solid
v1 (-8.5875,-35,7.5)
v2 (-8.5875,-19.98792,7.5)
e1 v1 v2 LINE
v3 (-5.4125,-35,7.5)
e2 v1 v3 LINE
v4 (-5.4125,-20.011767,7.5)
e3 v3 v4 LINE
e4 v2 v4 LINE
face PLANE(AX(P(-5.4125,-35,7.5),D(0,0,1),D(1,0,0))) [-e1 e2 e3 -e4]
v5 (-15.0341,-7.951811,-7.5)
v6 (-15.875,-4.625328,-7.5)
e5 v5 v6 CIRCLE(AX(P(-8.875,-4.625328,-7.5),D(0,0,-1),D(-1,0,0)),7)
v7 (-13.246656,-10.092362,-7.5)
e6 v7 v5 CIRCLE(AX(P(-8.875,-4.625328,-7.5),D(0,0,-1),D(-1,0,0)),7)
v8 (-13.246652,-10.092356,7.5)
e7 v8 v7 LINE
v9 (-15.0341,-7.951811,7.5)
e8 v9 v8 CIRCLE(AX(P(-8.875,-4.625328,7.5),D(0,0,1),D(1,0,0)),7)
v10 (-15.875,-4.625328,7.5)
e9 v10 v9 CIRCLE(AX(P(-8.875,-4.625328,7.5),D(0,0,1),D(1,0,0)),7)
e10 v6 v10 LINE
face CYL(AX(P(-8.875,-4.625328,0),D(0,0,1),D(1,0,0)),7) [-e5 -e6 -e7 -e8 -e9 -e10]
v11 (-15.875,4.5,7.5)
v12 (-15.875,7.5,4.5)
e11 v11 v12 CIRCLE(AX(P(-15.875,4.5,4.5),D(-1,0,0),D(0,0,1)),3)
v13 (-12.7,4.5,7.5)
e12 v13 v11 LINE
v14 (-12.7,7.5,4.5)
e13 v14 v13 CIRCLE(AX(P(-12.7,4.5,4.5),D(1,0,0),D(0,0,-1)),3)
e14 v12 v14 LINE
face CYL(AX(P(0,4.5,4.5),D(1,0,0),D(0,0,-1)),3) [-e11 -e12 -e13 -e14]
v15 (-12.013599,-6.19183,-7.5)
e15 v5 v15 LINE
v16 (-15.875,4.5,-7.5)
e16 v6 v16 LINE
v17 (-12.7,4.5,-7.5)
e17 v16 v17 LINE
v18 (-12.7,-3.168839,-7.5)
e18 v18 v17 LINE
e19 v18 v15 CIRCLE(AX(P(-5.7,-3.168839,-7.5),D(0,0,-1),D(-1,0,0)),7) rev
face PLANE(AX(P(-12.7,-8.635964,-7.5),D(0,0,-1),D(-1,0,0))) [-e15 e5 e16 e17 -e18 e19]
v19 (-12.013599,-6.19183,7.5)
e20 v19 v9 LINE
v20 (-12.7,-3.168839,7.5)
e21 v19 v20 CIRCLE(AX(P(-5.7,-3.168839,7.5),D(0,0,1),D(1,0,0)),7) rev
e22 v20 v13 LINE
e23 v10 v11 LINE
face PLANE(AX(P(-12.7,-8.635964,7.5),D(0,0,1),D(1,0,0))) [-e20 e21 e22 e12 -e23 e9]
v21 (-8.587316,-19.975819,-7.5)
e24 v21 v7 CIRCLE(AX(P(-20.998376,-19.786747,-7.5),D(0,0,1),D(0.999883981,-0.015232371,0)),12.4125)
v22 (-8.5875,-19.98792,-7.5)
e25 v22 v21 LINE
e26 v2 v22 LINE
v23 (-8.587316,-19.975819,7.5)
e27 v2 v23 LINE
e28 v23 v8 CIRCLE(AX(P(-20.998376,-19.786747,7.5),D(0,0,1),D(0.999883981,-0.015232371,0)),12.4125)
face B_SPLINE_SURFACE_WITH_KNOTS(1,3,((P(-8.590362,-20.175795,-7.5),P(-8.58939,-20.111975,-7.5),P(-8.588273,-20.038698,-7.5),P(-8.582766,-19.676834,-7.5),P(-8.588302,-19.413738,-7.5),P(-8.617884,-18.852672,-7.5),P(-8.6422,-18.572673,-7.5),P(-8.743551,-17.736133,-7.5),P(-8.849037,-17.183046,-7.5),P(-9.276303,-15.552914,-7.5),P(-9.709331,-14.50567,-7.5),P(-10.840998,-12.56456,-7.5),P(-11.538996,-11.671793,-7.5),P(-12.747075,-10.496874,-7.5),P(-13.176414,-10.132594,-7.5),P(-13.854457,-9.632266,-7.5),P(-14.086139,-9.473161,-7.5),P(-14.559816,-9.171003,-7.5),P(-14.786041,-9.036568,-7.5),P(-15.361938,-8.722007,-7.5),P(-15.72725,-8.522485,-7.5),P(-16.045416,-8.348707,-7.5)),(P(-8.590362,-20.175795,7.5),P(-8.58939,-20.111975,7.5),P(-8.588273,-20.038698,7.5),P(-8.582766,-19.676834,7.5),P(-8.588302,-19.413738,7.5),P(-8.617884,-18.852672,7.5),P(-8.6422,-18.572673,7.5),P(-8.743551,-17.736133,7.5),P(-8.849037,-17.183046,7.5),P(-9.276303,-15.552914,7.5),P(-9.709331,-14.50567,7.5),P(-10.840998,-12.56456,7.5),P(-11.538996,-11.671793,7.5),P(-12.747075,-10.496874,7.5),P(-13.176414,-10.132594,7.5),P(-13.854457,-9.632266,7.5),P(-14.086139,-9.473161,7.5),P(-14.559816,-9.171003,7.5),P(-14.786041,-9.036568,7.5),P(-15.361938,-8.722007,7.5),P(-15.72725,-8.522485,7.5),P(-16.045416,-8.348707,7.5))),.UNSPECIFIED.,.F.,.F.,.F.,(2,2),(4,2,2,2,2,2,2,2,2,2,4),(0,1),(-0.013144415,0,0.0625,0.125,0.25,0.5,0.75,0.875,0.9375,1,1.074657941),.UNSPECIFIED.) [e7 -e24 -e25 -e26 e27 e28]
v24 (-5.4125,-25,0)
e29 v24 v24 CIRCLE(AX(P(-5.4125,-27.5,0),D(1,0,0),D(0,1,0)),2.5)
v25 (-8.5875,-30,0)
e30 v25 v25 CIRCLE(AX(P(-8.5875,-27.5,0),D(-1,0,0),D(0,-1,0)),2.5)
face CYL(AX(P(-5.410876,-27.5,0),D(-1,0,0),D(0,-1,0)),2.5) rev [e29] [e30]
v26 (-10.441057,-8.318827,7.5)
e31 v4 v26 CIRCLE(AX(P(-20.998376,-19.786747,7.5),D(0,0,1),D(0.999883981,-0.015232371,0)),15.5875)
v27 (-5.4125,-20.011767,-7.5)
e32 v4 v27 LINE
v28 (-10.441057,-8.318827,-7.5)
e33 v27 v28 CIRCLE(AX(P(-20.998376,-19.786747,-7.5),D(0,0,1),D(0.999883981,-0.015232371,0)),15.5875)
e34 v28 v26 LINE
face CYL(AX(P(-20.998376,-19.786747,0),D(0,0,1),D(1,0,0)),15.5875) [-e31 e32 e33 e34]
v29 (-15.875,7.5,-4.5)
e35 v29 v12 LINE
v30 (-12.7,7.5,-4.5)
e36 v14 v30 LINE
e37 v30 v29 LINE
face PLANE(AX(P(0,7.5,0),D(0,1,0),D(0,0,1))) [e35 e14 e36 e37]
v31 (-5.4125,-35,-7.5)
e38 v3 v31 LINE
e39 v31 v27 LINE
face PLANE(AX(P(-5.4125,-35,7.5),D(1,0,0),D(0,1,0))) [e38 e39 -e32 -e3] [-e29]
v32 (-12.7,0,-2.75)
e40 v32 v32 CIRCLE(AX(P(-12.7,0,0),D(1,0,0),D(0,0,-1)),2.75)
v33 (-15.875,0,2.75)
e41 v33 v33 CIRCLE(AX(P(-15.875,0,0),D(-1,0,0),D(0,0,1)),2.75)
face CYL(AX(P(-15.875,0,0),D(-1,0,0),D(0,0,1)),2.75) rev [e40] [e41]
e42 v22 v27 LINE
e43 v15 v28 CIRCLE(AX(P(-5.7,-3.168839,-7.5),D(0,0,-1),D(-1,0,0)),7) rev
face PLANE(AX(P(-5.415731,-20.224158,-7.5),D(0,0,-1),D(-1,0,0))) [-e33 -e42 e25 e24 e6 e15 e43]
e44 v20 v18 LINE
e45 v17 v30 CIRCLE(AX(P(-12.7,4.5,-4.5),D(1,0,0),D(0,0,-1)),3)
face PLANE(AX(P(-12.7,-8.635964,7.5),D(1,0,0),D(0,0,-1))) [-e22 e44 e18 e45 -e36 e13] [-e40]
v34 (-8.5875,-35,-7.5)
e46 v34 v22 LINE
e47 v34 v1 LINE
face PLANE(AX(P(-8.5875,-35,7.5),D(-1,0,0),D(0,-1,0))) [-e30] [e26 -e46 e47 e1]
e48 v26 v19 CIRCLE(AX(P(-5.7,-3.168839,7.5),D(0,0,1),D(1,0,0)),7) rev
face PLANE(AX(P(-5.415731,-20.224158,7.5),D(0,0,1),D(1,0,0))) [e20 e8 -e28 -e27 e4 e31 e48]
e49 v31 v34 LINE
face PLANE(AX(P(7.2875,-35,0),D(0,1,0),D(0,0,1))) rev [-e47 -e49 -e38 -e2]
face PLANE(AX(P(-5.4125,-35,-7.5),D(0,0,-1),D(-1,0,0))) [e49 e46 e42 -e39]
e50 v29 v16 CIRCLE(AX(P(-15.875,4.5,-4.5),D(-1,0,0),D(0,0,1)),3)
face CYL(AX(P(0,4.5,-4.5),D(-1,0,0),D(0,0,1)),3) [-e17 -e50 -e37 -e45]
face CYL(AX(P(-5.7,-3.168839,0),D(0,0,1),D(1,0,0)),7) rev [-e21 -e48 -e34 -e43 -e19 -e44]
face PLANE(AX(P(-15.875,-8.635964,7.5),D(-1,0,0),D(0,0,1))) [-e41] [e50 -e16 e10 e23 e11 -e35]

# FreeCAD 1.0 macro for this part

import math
import FreeCAD as App
import Part
import Sketcher


def edges_at(feature, points):
    """Names of the edges that pass closest to the given points."""
    edges = feature.Shape.Edges
    near = lambda p: min(range(len(edges)), key=lambda i: edges[i].distToShape(Part.Vertex(*p))[0])
    return sorted({f"Edge{near(p) + 1}" for p in points})

doc = App.newDocument("Part")
body = doc.addObject("PartDesign::Body", "Body")

sketch1 = body.newObject("Sketcher::SketchObject", "Sketch")
sketch1.AttachmentSupport = (doc.getObject("XZ_Plane"), [""])
sketch1.MapMode = "FlatFace"
sketch1.addGeometry([
    Part.LineSegment(App.Vector(-15.875, 7.5, 0), App.Vector(-12.7, 7.5, 0)),
    Part.LineSegment(App.Vector(-12.7, 7.5, 0), App.Vector(-12.7, -7.5, 0)),
    Part.LineSegment(App.Vector(-12.7, -7.5, 0), App.Vector(-15.875, -7.5, 0)),
    Part.LineSegment(App.Vector(-15.875, -7.5, 0), App.Vector(-15.875, 7.5, 0)),
], False)
sketch1.addConstraint([
    Sketcher.Constraint("Coincident", 0, 2, 1, 1),
    Sketcher.Constraint("Coincident", 1, 2, 2, 1),
    Sketcher.Constraint("Coincident", 2, 2, 3, 1),
    Sketcher.Constraint("Coincident", 3, 2, 0, 1),
    Sketcher.Constraint("Horizontal", 0),
    Sketcher.Constraint("Vertical", 1),
    Sketcher.Constraint("Horizontal", 2),
    Sketcher.Constraint("Vertical", 3),
    Sketcher.Constraint("DistanceY", 1, 2, 1, 1, 15.0),
    Sketcher.Constraint("DistanceX", 0, 2, -1, 1, 12.7),
    Sketcher.Constraint("DistanceY", -1, 1, 0, 2, 7.5),
    Sketcher.Constraint("DistanceX", 0, 1, 0, 2, 3.175),
])

sketch2 = body.newObject("Sketcher::SketchObject", "Sketch001")
sketch2.AttachmentSupport = (doc.getObject("XY_Plane"), [""])
sketch2.MapMode = "FlatFace"
sketch2.addGeometry([
    Part.LineSegment(App.Vector(-14.2875, 7.5, 0), App.Vector(-14.2875, -7.5, 0)),
    Part.ArcOfCircle(Part.Circle(App.Vector(-20.998376, -19.786747, 0), App.Vector(0, 0, 1), 14), math.radians(-0.872784), math.radians(61.357155)),
    Part.LineSegment(App.Vector(-7, -20, 0), App.Vector(-7, -35, 0)),
], False)
sketch2.addConstraint([
    Sketcher.Constraint("Coincident", 0, 2, 1, 2),
    Sketcher.Constraint("Coincident", 1, 1, 2, 1),
    Sketcher.Constraint("Vertical", 0),
    Sketcher.Constraint("Vertical", 2),
    Sketcher.Constraint("Equal", 0, 2),
    Sketcher.Constraint("Radius", 1, 14.0),
    Sketcher.Constraint("DistanceY", 0, 2, 0, 1, 15.0),
    Sketcher.Constraint("DistanceX", 1, 1, -1, 1, 7.0),
    Sketcher.Constraint("DistanceY", 1, 1, -1, 1, 20.0),
    Sketcher.Constraint("DistanceY", -1, 1, 0, 1, 7.5),
    Sketcher.Constraint("DistanceX", 0, 1, -1, 1, 14.2875),
])
doc.recompute()

additivepipe = body.newObject("PartDesign::AdditivePipe", "AdditivePipe")
additivepipe.Profile = sketch1
additivepipe.Spine = (sketch2, ["Edge1", "Edge2", "Edge3"])
additivepipe.Transition = "Right corner"
doc.recompute()

fillet = body.newObject("PartDesign::Fillet", "Fillet")
fillet.Base = (additivepipe, edges_at(additivepipe, [(-15.875, -8.442, 0), (-12.7, -6.592, 0)]))
fillet.Radius = 7

sketch3 = body.newObject("Sketcher::SketchObject", "Sketch002")
sketch3.AttachmentSupport = (doc.getObject("YZ_Plane"), [""])
sketch3.MapMode = "FlatFace"
sketch3.AttachmentOffset = App.Placement(App.Vector(0, 0, -15.875), App.Rotation())
sketch3.addGeometry(Part.Circle(App.Vector(0, 0, 0), App.Vector(0, 0, 1), 2.75), False)
sketch3.addConstraint([
    Sketcher.Constraint("Coincident", 0, 3, -1, 1),
    Sketcher.Constraint("Diameter", 0, 5.5),
])
doc.recompute()
hole = body.newObject("PartDesign::Hole", "Hole")
hole.Profile = sketch3
hole.ThreadType = "None"
hole.Diameter = 5.5
hole.DepthType = "ThroughAll"
hole.Reversed = True

sketch4 = body.newObject("Sketcher::SketchObject", "Sketch003")
sketch4.AttachmentSupport = (doc.getObject("YZ_Plane"), [""])
sketch4.MapMode = "FlatFace"
sketch4.AttachmentOffset = App.Placement(App.Vector(0, 0, -8.5875), App.Rotation())
sketch4.addGeometry(Part.Circle(App.Vector(-27.5, 0, 0), App.Vector(0, 0, 1), 2.5), False)
sketch4.addConstraint([
    Sketcher.Constraint("PointOnObject", 0, 3, -1),
    Sketcher.Constraint("Diameter", 0, 5.0),
    Sketcher.Constraint("DistanceX", 0, 3, -1, 1, 27.5),
])
pocket1 = body.newObject("PartDesign::Pocket", "Pocket")
pocket1.Profile = sketch4
pocket1.Type = "ThroughAll"
pocket1.Midplane = True
doc.recompute()

fillet2 = body.newObject("PartDesign::Fillet", "Fillet001")
fillet2.Base = (pocket1, edges_at(pocket1, [(-14.287, 7.5, 7.5), (-14.287, 7.5, -7.5)]))
fillet2.Radius = 3

doc.recompute()
